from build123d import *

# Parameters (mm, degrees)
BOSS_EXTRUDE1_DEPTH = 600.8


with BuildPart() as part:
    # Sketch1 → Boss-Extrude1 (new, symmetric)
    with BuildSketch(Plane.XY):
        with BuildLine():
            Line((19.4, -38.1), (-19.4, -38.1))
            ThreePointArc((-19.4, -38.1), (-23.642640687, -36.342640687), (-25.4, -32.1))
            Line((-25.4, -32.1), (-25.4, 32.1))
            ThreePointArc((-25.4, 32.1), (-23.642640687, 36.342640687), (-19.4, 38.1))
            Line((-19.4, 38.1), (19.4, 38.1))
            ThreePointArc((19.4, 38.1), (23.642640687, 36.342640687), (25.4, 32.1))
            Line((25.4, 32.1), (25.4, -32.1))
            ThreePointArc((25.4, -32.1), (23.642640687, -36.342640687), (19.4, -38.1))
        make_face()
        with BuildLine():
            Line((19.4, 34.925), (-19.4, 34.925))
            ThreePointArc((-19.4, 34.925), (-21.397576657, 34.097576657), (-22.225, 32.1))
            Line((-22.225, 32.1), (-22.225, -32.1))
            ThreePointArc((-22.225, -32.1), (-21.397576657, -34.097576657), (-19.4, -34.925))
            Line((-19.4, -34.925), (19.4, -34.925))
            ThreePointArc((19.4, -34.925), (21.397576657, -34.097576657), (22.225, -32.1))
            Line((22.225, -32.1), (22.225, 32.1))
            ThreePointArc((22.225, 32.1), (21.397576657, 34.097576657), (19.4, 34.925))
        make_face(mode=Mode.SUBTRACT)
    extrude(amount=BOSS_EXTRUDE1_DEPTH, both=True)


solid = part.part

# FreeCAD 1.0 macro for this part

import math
import FreeCAD as App
import Part
import Sketcher

doc = App.newDocument("Part")
body = doc.addObject("PartDesign::Body", "Body")

# Sketch on XY plane
sketch1 = body.newObject("Sketcher::SketchObject", "Sketch")
sketch1.AttachmentSupport = (doc.getObject("XY_Plane"), [""])
sketch1.MapMode = "FlatFace"
sketch1.addGeometry([
    Part.LineSegment(App.Vector(-19.4, -38.1, 0), App.Vector(19.4, -38.1, 0)),  # 0
    Part.ArcOfCircle(Part.Circle(App.Vector(19.4, -32.1, 0), App.Vector(0, 0, 1), 6), math.radians(-90), math.radians(0)),  # 1
    Part.LineSegment(App.Vector(25.4, -32.1, 0), App.Vector(25.4, 32.1, 0)),  # 2
    Part.ArcOfCircle(Part.Circle(App.Vector(19.4, 32.1, 0), App.Vector(0, 0, 1), 6), math.radians(0), math.radians(90)),  # 3
    Part.LineSegment(App.Vector(19.4, 38.1, 0), App.Vector(-19.4, 38.1, 0)),  # 4
    Part.ArcOfCircle(Part.Circle(App.Vector(-19.4, 32.1, 0), App.Vector(0, 0, 1), 6), math.radians(90), math.radians(180)),  # 5
    Part.LineSegment(App.Vector(-25.4, 32.1, 0), App.Vector(-25.4, -32.1, 0)),  # 6
    Part.ArcOfCircle(Part.Circle(App.Vector(-19.4, -32.1, 0), App.Vector(0, 0, 1), 6), math.radians(180), math.radians(270)),  # 7
    Part.ArcOfCircle(Part.Circle(App.Vector(19.4, 32.1, 0), App.Vector(0, 0, 1), 2.8), math.radians(0), math.radians(90)),  # 8
    Part.LineSegment(App.Vector(22.2, 32.1, 0), App.Vector(22.2, -32.1, 0)),  # 9
    Part.ArcOfCircle(Part.Circle(App.Vector(19.4, -32.1, 0), App.Vector(0, 0, 1), 2.8), math.radians(-90), math.radians(0)),  # 10
    Part.LineSegment(App.Vector(19.4, -34.9, 0), App.Vector(-19.4, -34.9, 0)),  # 11
    Part.ArcOfCircle(Part.Circle(App.Vector(-19.4, -32.1, 0), App.Vector(0, 0, 1), 2.8), math.radians(180), math.radians(270)),  # 12
    Part.LineSegment(App.Vector(-22.2, -32.1, 0), App.Vector(-22.2, 32.1, 0)),  # 13
    Part.ArcOfCircle(Part.Circle(App.Vector(-19.4, 32.1, 0), App.Vector(0, 0, 1), 2.8), math.radians(90), math.radians(180)),  # 14
    Part.LineSegment(App.Vector(-19.4, 34.9, 0), App.Vector(19.4, 34.9, 0)),  # 15
], False)
sketch1.addConstraint([
    Sketcher.Constraint("Tangent", 0, 2, 1, 1),
    Sketcher.Constraint("Tangent", 1, 2, 2, 1),
    Sketcher.Constraint("Tangent", 2, 2, 3, 1),
    Sketcher.Constraint("Tangent", 3, 2, 4, 1),
    Sketcher.Constraint("Tangent", 4, 2, 5, 1),
    Sketcher.Constraint("Tangent", 5, 2, 6, 1),
    Sketcher.Constraint("Tangent", 6, 2, 7, 1),
    Sketcher.Constraint("Tangent", 7, 2, 0, 1),
    Sketcher.Constraint("Tangent", 8, 1, 9, 1),
    Sketcher.Constraint("Tangent", 9, 2, 10, 2),
    Sketcher.Constraint("Tangent", 10, 1, 11, 1),
    Sketcher.Constraint("Tangent", 11, 2, 12, 2),
    Sketcher.Constraint("Tangent", 12, 1, 13, 1),
    Sketcher.Constraint("Tangent", 13, 2, 14, 2),
    Sketcher.Constraint("Tangent", 14, 1, 15, 1),
    Sketcher.Constraint("Tangent", 15, 2, 8, 2),
    Sketcher.Constraint("Horizontal", 0),
    Sketcher.Constraint("Vertical", 2),
    Sketcher.Constraint("Horizontal", 4),
    Sketcher.Constraint("Vertical", 6),
    Sketcher.Constraint("Vertical", 9),
    Sketcher.Constraint("Horizontal", 11),
    Sketcher.Constraint("Vertical", 13),
    Sketcher.Constraint("Horizontal", 15),
    Sketcher.Constraint("Coincident", 8, 3, 3, 3),
    Sketcher.Constraint("Coincident", 10, 3, 1, 3),
    Sketcher.Constraint("Coincident", 12, 3, 7, 3),
    Sketcher.Constraint("Equal", 1, 3),
    Sketcher.Constraint("Equal", 3, 5),
    Sketcher.Constraint("Equal", 5, 7),
    Sketcher.Constraint("Equal", 12, 14),
    Sketcher.Constraint("Symmetric", 1, 3, 5, 3, -1, 1),
    Sketcher.Constraint("Radius", 1, 6.0),
    Sketcher.Constraint("DistanceX", 0, 1, 0, 2, 38.8),
    Sketcher.Constraint("DistanceY", 2, 1, 2, 2, 64.2),
    Sketcher.Constraint("Radius", 8, 2.825),
])
pad1 = body.newObject("PartDesign::Pad", "Pad")
pad1.Profile = sketch1
pad1.Length = 1201.6
pad1.Midplane = True

doc.recompute()
